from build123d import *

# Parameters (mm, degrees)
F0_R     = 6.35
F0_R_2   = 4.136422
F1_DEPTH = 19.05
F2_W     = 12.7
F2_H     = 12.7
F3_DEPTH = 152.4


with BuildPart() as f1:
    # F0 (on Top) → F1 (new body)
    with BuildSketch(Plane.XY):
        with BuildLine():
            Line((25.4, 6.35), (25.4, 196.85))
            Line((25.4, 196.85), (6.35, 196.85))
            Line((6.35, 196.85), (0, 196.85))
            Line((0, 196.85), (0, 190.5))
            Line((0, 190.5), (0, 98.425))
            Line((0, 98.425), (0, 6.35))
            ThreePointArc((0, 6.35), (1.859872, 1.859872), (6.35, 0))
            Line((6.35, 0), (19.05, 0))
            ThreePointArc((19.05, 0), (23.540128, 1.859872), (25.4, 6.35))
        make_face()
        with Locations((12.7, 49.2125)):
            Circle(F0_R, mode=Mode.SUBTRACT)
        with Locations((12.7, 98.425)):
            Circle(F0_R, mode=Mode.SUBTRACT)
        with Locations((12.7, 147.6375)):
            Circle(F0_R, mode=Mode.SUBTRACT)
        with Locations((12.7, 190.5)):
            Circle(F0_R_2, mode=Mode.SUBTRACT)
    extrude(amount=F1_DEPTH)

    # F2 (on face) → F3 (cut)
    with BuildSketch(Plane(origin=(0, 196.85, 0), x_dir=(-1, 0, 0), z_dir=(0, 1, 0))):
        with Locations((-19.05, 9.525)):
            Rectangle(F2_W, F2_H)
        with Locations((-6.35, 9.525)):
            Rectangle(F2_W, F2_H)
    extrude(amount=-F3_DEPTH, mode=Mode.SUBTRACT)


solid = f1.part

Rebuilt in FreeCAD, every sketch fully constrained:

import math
import FreeCAD as App
import Part
import Sketcher

V = App.Vector
Q = App.Units.Quantity

doc = App.newDocument("Part")
body = doc.addObject("PartDesign::Body", "Body")

sketch1 = body.newObject("Sketcher::SketchObject", "Sketch")
sketch1.AttachmentSupport = (doc.getObject("XY_Plane"), [""])
sketch1.MapMode = "FlatFace"
sketch1.addGeometry([
    Part.LineSegment(V(25.4, 6.3, 0), V(25.4, 196.8, 0)),
    Part.LineSegment(V(25.4, 196.8, 0), V(0, 196.8, 0)),
    Part.LineSegment(V(0, 196.8, 0), V(0, 6.3, 0)),
    Part.ArcOfCircle(Part.Circle(V(6.4, 6.4, 0), V(0, 0, 1), 6.4), math.radians(-180), math.radians(-90)),
    Part.LineSegment(V(6.3, 0, 0), V(19.1, 0, 0)),
    Part.ArcOfCircle(Part.Circle(V(19, 6.4, 0), V(0, 0, 1), 6.4), math.radians(-90), math.radians(0)),
    Part.Circle(V(12.7, 49.2, 0), V(0, 0, 1), 6.3),
    Part.Circle(V(12.7, 98.4, 0), V(0, 0, 1), 6.3),
    Part.Circle(V(12.7, 147.6, 0), V(0, 0, 1), 6.3),
    Part.Circle(V(12.7, 190.5, 0), V(0, 0, 1), 4.1),
], False)
sketch1.addConstraint([
    Sketcher.Constraint("Coincident", 0, 2, 1, 1),
    Sketcher.Constraint("Coincident", 1, 2, 2, 1),
    Sketcher.Constraint("Tangent", 2, 2, 3, 1),
    Sketcher.Constraint("Tangent", 3, 2, 4, 1),
    Sketcher.Constraint("Tangent", 4, 2, 5, 1),
    Sketcher.Constraint("Tangent", 5, 2, 0, 1),
    Sketcher.Constraint("Vertical", 0),
    Sketcher.Constraint("Horizontal", 1),
    Sketcher.Constraint("Vertical", 2),
    Sketcher.Constraint("Horizontal", 4),
    Sketcher.Constraint("Equal", 3, 5),
    Sketcher.Constraint("Equal", 5, 6),
    Sketcher.Constraint("Equal", 6, 7),
    Sketcher.Constraint("Equal", 7, 8),
    Sketcher.Constraint("PointOnObject", 1, 2, -2),
    Sketcher.Constraint("PointOnObject", 3, 2, -1),
    Sketcher.Constraint("Vertical", 6, 3, 7, 3),
    Sketcher.Constraint("Vertical", 7, 3, 8, 3),
    Sketcher.Constraint("Vertical", 8, 3, 9, 3),
    Sketcher.Constraint("Diameter", 6, Q("0.5 in")),
    Sketcher.Constraint("DistanceX", 1, 2, 1, 1, Q("1 in")),
    Sketcher.Constraint("DistanceY", 0, 1, 0, 2, Q("7.5 in")),
    Sketcher.Constraint("DistanceX", -1, 1, 6, 3, Q("0.5 in")),
    Sketcher.Constraint("DistanceY", -1, 1, 9, 3, Q("7.5 in")),
    Sketcher.Constraint("DistanceY", -1, 1, 6, 3, Q("1.9375 in")),
    Sketcher.Constraint("DistanceY", -1, 1, 7, 3, Q("3.875 in")),
    Sketcher.Constraint("DistanceY", -1, 1, 8, 3, Q("5.8125 in")),
    Sketcher.Constraint("Diameter", 9, 8.272844),
])
pad1 = body.newObject("PartDesign::Pad", "Pad")
pad1.Profile = sketch1
pad1.Length = Q("0.75 in")

sketch2 = body.newObject("Sketcher::SketchObject", "Sketch001")
sketch2.AttachmentSupport = (doc.getObject("XZ_Plane"), [""])
sketch2.MapMode = "FlatFace"
sketch2.AttachmentOffset = App.Placement(V(0, 0, -7.75 * 25.4), App.Rotation())
sketch2.addGeometry([
    Part.LineSegment(V(25, 16, 0), V(25, 3, 0)),
    Part.LineSegment(V(25, 3, 0), V(0, 3, 0)),
    Part.LineSegment(V(0, 3, 0), V(0, 16, 0)),
    Part.LineSegment(V(0, 16, 0), V(25, 16, 0)),
], False)
sketch2.addConstraint([
    Sketcher.Constraint("Coincident", 0, 2, 1, 1),
    Sketcher.Constraint("Coincident", 1, 2, 2, 1),
    Sketcher.Constraint("Coincident", 2, 2, 3, 1),
    Sketcher.Constraint("Coincident", 3, 2, 0, 1),
    Sketcher.Constraint("Vertical", 0),
    Sketcher.Constraint("Horizontal", 1),
    Sketcher.Constraint("Vertical", 2),
    Sketcher.Constraint("Horizontal", 3),
    Sketcher.Constraint("PointOnObject", 1, 2, -2),
    Sketcher.Constraint("DistanceX", 1, 2, 1, 1, Q("1 in")),
    Sketcher.Constraint("DistanceY", 0, 2, 0, 1, Q("0.5 in")),
    Sketcher.Constraint("DistanceY", -1, 1, 0, 2, Q("0.125 in")),
])
pocket1 = body.newObject("PartDesign::Pocket", "Pocket")
pocket1.Profile = sketch2
pocket1.Length = Q("6 in")
pocket1.Reversed = True

doc.recompute()
